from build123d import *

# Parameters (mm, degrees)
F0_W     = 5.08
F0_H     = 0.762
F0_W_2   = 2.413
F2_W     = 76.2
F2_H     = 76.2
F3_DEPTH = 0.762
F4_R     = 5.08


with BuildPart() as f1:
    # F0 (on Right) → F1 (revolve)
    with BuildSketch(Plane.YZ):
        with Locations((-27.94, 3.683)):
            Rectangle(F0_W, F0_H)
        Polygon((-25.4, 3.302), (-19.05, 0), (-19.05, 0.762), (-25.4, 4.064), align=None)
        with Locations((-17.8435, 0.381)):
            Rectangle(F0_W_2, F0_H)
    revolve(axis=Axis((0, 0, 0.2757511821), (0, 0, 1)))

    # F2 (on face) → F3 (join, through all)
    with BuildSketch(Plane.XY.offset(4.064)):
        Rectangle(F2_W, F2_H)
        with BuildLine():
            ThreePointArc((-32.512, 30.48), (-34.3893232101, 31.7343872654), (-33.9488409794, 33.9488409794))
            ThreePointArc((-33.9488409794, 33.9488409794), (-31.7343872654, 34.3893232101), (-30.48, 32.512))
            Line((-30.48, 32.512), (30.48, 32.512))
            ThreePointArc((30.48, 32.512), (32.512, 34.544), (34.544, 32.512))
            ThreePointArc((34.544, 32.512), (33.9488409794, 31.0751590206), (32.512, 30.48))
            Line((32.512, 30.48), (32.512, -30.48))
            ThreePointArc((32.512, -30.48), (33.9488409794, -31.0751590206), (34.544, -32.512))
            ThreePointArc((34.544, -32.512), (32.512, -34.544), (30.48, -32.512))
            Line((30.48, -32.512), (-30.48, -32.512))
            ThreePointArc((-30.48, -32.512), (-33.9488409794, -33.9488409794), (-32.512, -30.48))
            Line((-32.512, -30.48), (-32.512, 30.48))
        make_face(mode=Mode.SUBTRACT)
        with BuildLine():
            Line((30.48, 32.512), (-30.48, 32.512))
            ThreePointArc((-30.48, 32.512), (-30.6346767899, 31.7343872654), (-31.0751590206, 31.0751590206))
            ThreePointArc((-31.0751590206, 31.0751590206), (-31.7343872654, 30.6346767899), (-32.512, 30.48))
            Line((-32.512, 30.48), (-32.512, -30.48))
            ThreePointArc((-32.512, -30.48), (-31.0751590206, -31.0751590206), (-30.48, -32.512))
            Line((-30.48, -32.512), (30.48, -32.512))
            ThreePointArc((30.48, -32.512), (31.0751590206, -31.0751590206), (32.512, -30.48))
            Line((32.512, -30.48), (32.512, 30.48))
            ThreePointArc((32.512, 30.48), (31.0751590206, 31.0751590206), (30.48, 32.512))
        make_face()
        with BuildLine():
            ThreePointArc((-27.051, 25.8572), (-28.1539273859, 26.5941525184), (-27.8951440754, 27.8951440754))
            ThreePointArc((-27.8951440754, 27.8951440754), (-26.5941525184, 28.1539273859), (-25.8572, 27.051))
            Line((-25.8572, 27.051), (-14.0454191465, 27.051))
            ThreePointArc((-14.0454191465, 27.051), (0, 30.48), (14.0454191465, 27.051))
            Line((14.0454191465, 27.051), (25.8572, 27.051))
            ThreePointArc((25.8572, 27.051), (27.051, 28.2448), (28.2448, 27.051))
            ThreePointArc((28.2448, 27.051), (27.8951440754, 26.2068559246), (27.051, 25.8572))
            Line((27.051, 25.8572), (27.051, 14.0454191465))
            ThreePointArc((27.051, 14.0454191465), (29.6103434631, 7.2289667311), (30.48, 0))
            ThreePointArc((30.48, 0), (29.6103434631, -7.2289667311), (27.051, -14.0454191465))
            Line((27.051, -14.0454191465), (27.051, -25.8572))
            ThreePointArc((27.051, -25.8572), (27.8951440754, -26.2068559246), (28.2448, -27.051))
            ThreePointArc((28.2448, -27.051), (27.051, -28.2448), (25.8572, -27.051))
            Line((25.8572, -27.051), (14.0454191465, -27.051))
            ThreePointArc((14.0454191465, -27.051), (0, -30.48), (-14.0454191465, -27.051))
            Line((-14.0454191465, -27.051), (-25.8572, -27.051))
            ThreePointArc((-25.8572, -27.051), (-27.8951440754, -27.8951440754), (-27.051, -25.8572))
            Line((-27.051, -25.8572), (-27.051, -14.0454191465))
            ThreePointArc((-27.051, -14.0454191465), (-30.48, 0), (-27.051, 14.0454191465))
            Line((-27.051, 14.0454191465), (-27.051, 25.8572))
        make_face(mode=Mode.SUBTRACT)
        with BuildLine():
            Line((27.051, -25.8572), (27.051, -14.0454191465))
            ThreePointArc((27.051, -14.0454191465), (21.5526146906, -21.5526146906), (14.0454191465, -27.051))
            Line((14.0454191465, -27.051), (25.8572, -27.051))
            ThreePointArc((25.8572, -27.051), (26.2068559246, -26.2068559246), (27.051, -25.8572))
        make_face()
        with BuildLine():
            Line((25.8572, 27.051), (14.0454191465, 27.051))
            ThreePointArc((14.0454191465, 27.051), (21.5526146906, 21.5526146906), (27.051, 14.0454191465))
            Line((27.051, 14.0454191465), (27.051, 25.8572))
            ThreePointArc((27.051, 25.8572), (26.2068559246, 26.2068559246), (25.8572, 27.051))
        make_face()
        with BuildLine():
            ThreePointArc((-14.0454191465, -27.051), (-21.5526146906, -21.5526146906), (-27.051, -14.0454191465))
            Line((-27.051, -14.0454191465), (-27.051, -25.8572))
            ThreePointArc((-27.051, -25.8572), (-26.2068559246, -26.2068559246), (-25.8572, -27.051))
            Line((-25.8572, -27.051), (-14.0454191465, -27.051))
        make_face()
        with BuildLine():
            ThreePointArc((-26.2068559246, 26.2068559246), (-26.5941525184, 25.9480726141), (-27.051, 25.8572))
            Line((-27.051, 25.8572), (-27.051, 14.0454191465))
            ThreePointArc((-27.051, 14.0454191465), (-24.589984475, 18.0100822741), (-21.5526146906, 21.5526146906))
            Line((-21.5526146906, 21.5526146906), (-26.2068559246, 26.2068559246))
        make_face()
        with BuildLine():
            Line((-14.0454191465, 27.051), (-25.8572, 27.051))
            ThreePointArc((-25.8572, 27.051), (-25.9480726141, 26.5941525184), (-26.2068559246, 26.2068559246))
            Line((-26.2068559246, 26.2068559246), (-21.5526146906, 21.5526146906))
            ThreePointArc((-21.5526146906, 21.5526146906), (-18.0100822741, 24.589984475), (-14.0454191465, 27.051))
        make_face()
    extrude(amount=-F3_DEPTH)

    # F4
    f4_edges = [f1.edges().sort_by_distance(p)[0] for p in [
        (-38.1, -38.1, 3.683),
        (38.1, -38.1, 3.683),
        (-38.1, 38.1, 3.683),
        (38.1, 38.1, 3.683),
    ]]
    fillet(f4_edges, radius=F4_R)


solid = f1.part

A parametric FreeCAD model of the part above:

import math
import FreeCAD as App
import Part
import Sketcher

V = App.Vector
Q = App.Units.Quantity


def edges_at(feature, points):
    """Names of the edges that pass closest to the given points."""
    edges = feature.Shape.Edges
    near = lambda p: min(range(len(edges)), key=lambda i: edges[i].distToShape(Part.Vertex(*p))[0])
    return sorted({f"Edge{near(p) + 1}" for p in points})

doc = App.newDocument("Part")
body = doc.addObject("PartDesign::Body", "Body")

# Sketch on YZ plane
sketch1 = doc.addObject("Sketcher::SketchObject", "Sketch")
body.addObject(sketch1)
sketch1.AttachmentSupport = (doc.YZ_Plane, [""])
sketch1.MapMode = "FlatFace"
sketch1.addGeometry([
    Part.LineSegment(V(-30.5, 4.1, 0), V(-30.5, 3.3, 0)),  # 0
    Part.LineSegment(V(-30.5, 3.3, 0), V(-25.4, 3.3, 0)),  # 1
    Part.LineSegment(V(-25.4, 3.3, 0), V(-19.1, 0, 0)),  # 2
    Part.LineSegment(V(-19.1, 0, 0), V(-16.6, 0, 0)),  # 3
    Part.LineSegment(V(-16.6, 0, 0), V(-16.6, 0.8, 0)),  # 4
    Part.LineSegment(V(-16.6, 0.8, 0), V(-19.1, 0.8, 0)),  # 5
    Part.LineSegment(V(-19.1, 0.8, 0), V(-25.4, 4.1, 0)),  # 6
    Part.LineSegment(V(-25.4, 4.1, 0), V(-30.5, 4.1, 0)),  # 7
], False)
sketch1.addConstraint([
    Sketcher.Constraint("Coincident", 0, 2, 1, 1),
    Sketcher.Constraint("Coincident", 1, 2, 2, 1),
    Sketcher.Constraint("Coincident", 2, 2, 3, 1),
    Sketcher.Constraint("Coincident", 3, 2, 4, 1),
    Sketcher.Constraint("Coincident", 4, 2, 5, 1),
    Sketcher.Constraint("Coincident", 5, 2, 6, 1),
    Sketcher.Constraint("Coincident", 6, 2, 7, 1),
    Sketcher.Constraint("Coincident", 7, 2, 0, 1),
    Sketcher.Constraint("Vertical", 0),
    Sketcher.Constraint("Horizontal", 1),
    Sketcher.Constraint("Horizontal", 3),
    Sketcher.Constraint("Vertical", 4),
    Sketcher.Constraint("Horizontal", 5),
    Sketcher.Constraint("Horizontal", 7),
    Sketcher.Constraint("PointOnObject", 2, 2, -1),
    Sketcher.Constraint("Parallel", 2, 6),
    Sketcher.Constraint("Vertical", 2, 2, 5, 2),
    Sketcher.Constraint("Vertical", 1, 2, 6, 2),
    Sketcher.Constraint("DistanceX", 1, 1, 1, 2, Q("0.2 in")),
    Sketcher.Constraint("DistanceX", 1, 2, -1, 1, Q("1 in")),
    Sketcher.Constraint("DistanceY", 0, 2, 0, 1, Q("0.03 in")),
    Sketcher.Constraint("DistanceY", 4, 2, 1, 2, Q("0.1 in")),
    Sketcher.Constraint("DistanceX", 3, 1, 3, 2, Q("0.095 in")),
    Sketcher.Constraint("DistanceX", 2, 2, -1, 1, Q("0.75 in")),
])
revolution = doc.addObject("PartDesign::Revolution", "Revolution")
body.addObject(revolution)
revolution.Profile = sketch1
revolution.ReferenceAxis = (sketch1, ["V_Axis"])
revolution.Angle = 360

# Sketch on XY plane
sketch2 = doc.addObject("Sketcher::SketchObject", "Sketch001")
body.addObject(sketch2)
sketch2.AttachmentSupport = (doc.XY_Plane, [""])
sketch2.MapMode = "FlatFace"
sketch2.AttachmentOffset = App.Placement(V(0, 0, 0.16 * 25.4), App.Rotation())
sketch2.addGeometry([
    Part.LineSegment(V(-38.1, 38.1, 0), V(-38.1, -38.1, 0)),  # 0
    Part.LineSegment(V(-38.1, -38.1, 0), V(38.1, -38.1, 0)),  # 1
    Part.LineSegment(V(38.1, -38.1, 0), V(38.1, 38.1, 0)),  # 2
    Part.LineSegment(V(38.1, 38.1, 0), V(-38.1, 38.1, 0)),  # 3
    Part.ArcOfCircle(Part.Circle(V(-32.5, -32.5, 0), V(0, 0, 1), 2), math.radians(90), math.radians(360)),  # 4
    Part.ArcOfCircle(Part.Circle(V(-32.5, -32.5, 0), V(0, 0, 1), 2), math.radians(0), math.radians(90)),  # 5
    Part.ArcOfCircle(Part.Circle(V(32.5, -32.5, 0), V(0, 0, 1), 2), math.radians(180), math.radians(360)),  # 6
    Part.ArcOfCircle(Part.Circle(V(32.5, -32.5, 0), V(0, 0, 1), 2), math.radians(90), math.radians(180)),  # 7
    Part.ArcOfCircle(Part.Circle(V(32.5, -32.5, 0), V(0, 0, 1), 2), math.radians(0), math.radians(90)),  # 8
    Part.ArcOfCircle(Part.Circle(V(-27.1, 27.1, 0), V(0, 0, 1), 1.2), math.radians(135), math.radians(270)),  # 9
    Part.ArcOfCircle(Part.Circle(V(-27.1, 27.1, 0), V(0, 0, 1), 1.2), math.radians(0), math.radians(135)),  # 10
    Part.ArcOfCircle(Part.Circle(V(-27.1, 27.1, 0), V(0, 0, 1), 1.2), math.radians(-45), math.radians(0)),  # 11
    Part.ArcOfCircle(Part.Circle(V(-27.1, 27.1, 0), V(0, 0, 1), 1.2), math.radians(-90), math.radians(-45)),  # 12
    Part.ArcOfCircle(Part.Circle(V(0, 0, 0), V(0, 0, 1), 30.5), math.radians(63), math.radians(117)),  # 13
    Part.ArcOfCircle(Part.Circle(V(0, 0, 0), V(0, 0, 1), 30.5), math.radians(27), math.radians(63)),  # 14
    Part.ArcOfCircle(Part.Circle(V(0, 0, 0), V(0, 0, 1), 30.5), math.radians(0), math.radians(27)),  # 15
    Part.ArcOfCircle(Part.Circle(V(0, 0, 0), V(0, 0, 1), 30.5), math.radians(-27), math.radians(0)),  # 16
    Part.ArcOfCircle(Part.Circle(V(0, 0, 0), V(0, 0, 1), 30.5), math.radians(-63), math.radians(-27)),  # 17
    Part.ArcOfCircle(Part.Circle(V(0, 0, 0), V(0, 0, 1), 30.5), math.radians(-117), math.radians(-63)),  # 18
    Part.ArcOfCircle(Part.Circle(V(0, 0, 0), V(0, 0, 1), 30.5), math.radians(-153), math.radians(-117)),  # 19
    Part.ArcOfCircle(Part.Circle(V(0, 0, 0), V(0, 0, 1), 30.5), math.radians(153), math.radians(207)),  # 20
    Part.ArcOfCircle(Part.Circle(V(0, 0, 0), V(0, 0, 1), 30.5), math.radians(135), math.radians(152.56)),  # 21
    Part.ArcOfCircle(Part.Circle(V(0, 0, 0), V(0, 0, 1), 30.5), math.radians(117.44), math.radians(135)),  # 22
    Part.ArcOfCircle(Part.Circle(V(-27.1, -27.1, 0), V(0, 0, 1), 1.2), math.radians(90), math.radians(360)),  # 23
    Part.ArcOfCircle(Part.Circle(V(-27.1, -27.1, 0), V(0, 0, 1), 1.2), math.radians(0), math.radians(90)),  # 24
    Part.ArcOfCircle(Part.Circle(V(27.1, 27.1, 0), V(0, 0, 1), 1.2), math.radians(0), math.radians(180)),  # 25
    Part.ArcOfCircle(Part.Circle(V(27.1, 27.1, 0), V(0, 0, 1), 1.2), math.radians(-90), math.radians(0)),  # 26
    Part.ArcOfCircle(Part.Circle(V(27.1, 27.1, 0), V(0, 0, 1), 1.2), math.radians(180), math.radians(270)),  # 27
    Part.ArcOfCircle(Part.Circle(V(27.1, -27.1, 0), V(0, 0, 1), 1.2), math.radians(180), math.radians(360)),  # 28
    Part.ArcOfCircle(Part.Circle(V(27.1, -27.1, 0), V(0, 0, 1), 1.2), math.radians(90), math.radians(180)),  # 29
    Part.ArcOfCircle(Part.Circle(V(27.1, -27.1, 0), V(0, 0, 1), 1.2), math.radians(0), math.radians(90)),  # 30
    Part.ArcOfCircle(Part.Circle(V(-32.5, 32.5, 0), V(0, 0, 1), 2), math.radians(0), math.radians(135)),  # 31
    Part.ArcOfCircle(Part.Circle(V(-32.5, 32.5, 0), V(0, 0, 1), 2), math.radians(-45), math.radians(0)),  # 32
    Part.ArcOfCircle(Part.Circle(V(-32.5, 32.5, 0), V(0, 0, 1), 2), math.radians(-90), math.radians(-45)),  # 33
    Part.ArcOfCircle(Part.Circle(V(-32.5, 32.5, 0), V(0, 0, 1), 2), math.radians(135), math.radians(270)),  # 34
    Part.ArcOfCircle(Part.Circle(V(32.5, 32.5, 0), V(0, 0, 1), 2), math.radians(-90), math.radians(0)),  # 35
    Part.ArcOfCircle(Part.Circle(V(32.5, 32.5, 0), V(0, 0, 1), 2), math.radians(180), math.radians(270)),  # 36
    Part.ArcOfCircle(Part.Circle(V(32.5, 32.5, 0), V(0, 0, 1), 2), math.radians(0), math.radians(180)),  # 37
], False)
sketch2.addConstraint([
    Sketcher.Constraint("Coincident", 0, 2, 1, 1),
    Sketcher.Constraint("Coincident", 1, 2, 2, 1),
    Sketcher.Constraint("Coincident", 2, 2, 3, 1),
    Sketcher.Constraint("Coincident", 3, 2, 0, 1),
    Sketcher.Constraint("Tangent", 4, 1, 5, 2),
    Sketcher.Constraint("Coincident", 5, 1, 4, 2),
    Sketcher.Constraint("Tangent", 6, 1, 7, 2),
    Sketcher.Constraint("Tangent", 7, 1, 8, 2),
    Sketcher.Constraint("Tangent", 8, 1, 6, 2),
    Sketcher.Constraint("Tangent", 9, 1, 10, 2),
    Sketcher.Constraint("Tangent", 10, 1, 11, 2),
    Sketcher.Constraint("Tangent", 11, 1, 12, 2),
    Sketcher.Constraint("Tangent", 12, 1, 9, 2),
    Sketcher.Constraint("Tangent", 13, 1, 14, 2),
    Sketcher.Constraint("Tangent", 14, 1, 15, 2),
    Sketcher.Constraint("Tangent", 15, 1, 16, 2),
    Sketcher.Constraint("Tangent", 16, 1, 17, 2),
    Sketcher.Constraint("Tangent", 17, 1, 18, 2),
    Sketcher.Constraint("Tangent", 18, 1, 19, 2),
    Sketcher.Constraint("Tangent", 19, 1, 20, 2),
    Sketcher.Constraint("Tangent", 20, 1, 21, 2),
    Sketcher.Constraint("Tangent", 21, 1, 22, 2),
    Sketcher.Constraint("Tangent", 22, 1, 13, 2),
    Sketcher.Constraint("Tangent", 23, 1, 24, 2),
    Sketcher.Constraint("Coincident", 24, 1, 23, 2),
    Sketcher.Constraint("Tangent", 25, 1, 26, 2),
    Sketcher.Constraint("Tangent", 26, 1, 27, 2),
    Sketcher.Constraint("Tangent", 27, 1, 25, 2),
    Sketcher.Constraint("Tangent", 28, 1, 29, 2),
    Sketcher.Constraint("Tangent", 29, 1, 30, 2),
    Sketcher.Constraint("Tangent", 30, 1, 28, 2),
    Sketcher.Constraint("Tangent", 31, 1, 32, 2),
    Sketcher.Constraint("Tangent", 32, 1, 33, 2),
    Sketcher.Constraint("Tangent", 33, 1, 34, 2),
    Sketcher.Constraint("Tangent", 34, 1, 31, 2),
    Sketcher.Constraint("Tangent", 35, 1, 36, 2),
    Sketcher.Constraint("Tangent", 36, 1, 37, 2),
    Sketcher.Constraint("Tangent", 37, 1, 35, 2),
    Sketcher.Constraint("Vertical", 0),
    Sketcher.Constraint("Horizontal", 1),
    Sketcher.Constraint("Vertical", 2),
    Sketcher.Constraint("Horizontal", 3),
    Sketcher.Constraint("Coincident", 13, 3, -1, 1),
    Sketcher.Constraint("Coincident", 15, 3, -1, 1),
    Sketcher.Constraint("Coincident", 17, 3, -1, 1),
    Sketcher.Constraint("Coincident", 19, 3, -1, 1),
    Sketcher.Constraint("Equal", 5, 6),
    Sketcher.Constraint("Equal", 9, 10),
    Sketcher.Constraint("Equal", 19, 20),
    Sketcher.Constraint("Equal", 12, 23),
    Sketcher.Constraint("Equal", 24, 25),
    Sketcher.Constraint("Equal", 27, 28),
    Sketcher.Constraint("Equal", 8, 31),
    Sketcher.Constraint("Equal", 31, 32),
    Sketcher.Constraint("Equal", 34, 35),
    Sketcher.Constraint("Symmetric", 23, 3, 25, 3, -1, 1),
    Sketcher.Constraint("Symmetric", 9, 3, 28, 3, -1, 1),
    Sketcher.Constraint("Symmetric", 6, 3, 31, 3, -1, 1),
    Sketcher.Constraint("Symmetric", 4, 3, 35, 3, -1, 1),
    Sketcher.Constraint("Symmetric", 0, 2, 2, 2, -1, 1),
    Sketcher.Constraint("Symmetric", 4, 3, 6, 3, -2),
    Sketcher.Constraint("Symmetric", 9, 3, 25, 3, -2),
    Sketcher.Constraint("PointOnObject", 15, 1, -1),
    Sketcher.Constraint("Horizontal", 8, 3, 5, 1),
    Sketcher.Constraint("Horizontal", 5, 1, 6, 1),
    Sketcher.Constraint("Horizontal", 6, 1, 8, 1),
    Sketcher.Constraint("Horizontal", 27, 3, 10, 1),
    Sketcher.Constraint("Horizontal", 10, 1, 13, 1),
    Sketcher.Constraint("Horizontal", 30, 3, 17, 1),
    Sketcher.Constraint("Horizontal", 17, 1, 18, 1),
    Sketcher.Constraint("Horizontal", 16, 1, 19, 1),
    Sketcher.Constraint("Horizontal", 14, 1, 20, 1),
    Sketcher.Constraint("Horizontal", 13, 1, 22, 1),
    Sketcher.Constraint("Horizontal", 18, 1, 24, 1),
    Sketcher.Constraint("Horizontal", 22, 1, 25, 1),
    Sketcher.Constraint("Horizontal", 25, 1, 27, 1),
    Sketcher.Constraint("Horizontal", 24, 1, 28, 1),
    Sketcher.Constraint("Horizontal", 28, 1, 30, 1),
    Sketcher.Constraint("Horizontal", 37, 3, 31, 1),
    Sketcher.Constraint("Horizontal", 31, 1, 36, 1),
    Sketcher.Constraint("Horizontal", 36, 1, 37, 1),
    Sketcher.Constraint("Vertical", 34, 3, 4, 1),
    Sketcher.Constraint("Vertical", 37, 3, 7, 1),
    Sketcher.Constraint("Vertical", 24, 3, 12, 1),
    Sketcher.Constraint("Vertical", 30, 3, 14, 1),
    Sketcher.Constraint("Vertical", 6, 1, 15, 1),
    Sketcher.Constraint("Vertical", 14, 1, 16, 1),
    Sketcher.Constraint("Vertical", 20, 1, 23, 1),
    Sketcher.Constraint("Vertical", 16, 1, 26, 1),
    Sketcher.Constraint("Vertical", 26, 1, 29, 1),
    Sketcher.Constraint("Vertical", 4, 1, 33, 1),
    Sketcher.Constraint("Vertical", 7, 1, 35, 1),
    Sketcher.Constraint("Equal", 3, 0),
    Sketcher.Constraint("Radius", 13, Q("1.2 in")),
    Sketcher.Constraint("DistanceX", 1, 1, 1, 2, Q("3 in")),
    Sketcher.Constraint("Radius", 4, Q("0.08 in")),
    Sketcher.Constraint("Radius", 9, Q("0.047 in")),
    Sketcher.Constraint("DistanceY", 4, 1, -1, 1, Q("1.2 in")),
    Sketcher.Constraint("DistanceX", 9, 3, -1, 1, Q("1.065 in")),
    Sketcher.Constraint("DistanceY", -1, 1, 9, 3, Q("1.065 in")),
    Sketcher.Constraint("DistanceX", 32, 1, -1, 1, Q("31.075159 mm")),
    Sketcher.Constraint("DistanceX", 34, 1, -1, 1, Q("33.948841 mm")),
    Sketcher.Constraint("DistanceX", 9, 1, -1, 1, Q("27.895144 mm")),
    Sketcher.Constraint("DistanceX", 11, 1, -1, 1, Q("26.206856 mm")),
    Sketcher.Constraint("DistanceX", 21, 1, -1, 1, Q("21.552615 mm")),
])
pad1 = doc.addObject("PartDesign::Pad", "Pad")
body.addObject(pad1)
pad1.Profile = sketch2
pad1.Length = Q("0.03 in")
pad1.Reversed = True
doc.recompute()

fillet = doc.addObject("PartDesign::Fillet", "Fillet")
body.addObject(fillet)
fillet.Base = (pad1, edges_at(pad1, [
    (-38.1, -38.1, 3.683),
    (38.1, -38.1, 3.683),
    (-38.1, 38.1, 3.683),
    (38.1, 38.1, 3.683),
]))
fillet.Radius = Q("0.2 in")

doc.recompute()
